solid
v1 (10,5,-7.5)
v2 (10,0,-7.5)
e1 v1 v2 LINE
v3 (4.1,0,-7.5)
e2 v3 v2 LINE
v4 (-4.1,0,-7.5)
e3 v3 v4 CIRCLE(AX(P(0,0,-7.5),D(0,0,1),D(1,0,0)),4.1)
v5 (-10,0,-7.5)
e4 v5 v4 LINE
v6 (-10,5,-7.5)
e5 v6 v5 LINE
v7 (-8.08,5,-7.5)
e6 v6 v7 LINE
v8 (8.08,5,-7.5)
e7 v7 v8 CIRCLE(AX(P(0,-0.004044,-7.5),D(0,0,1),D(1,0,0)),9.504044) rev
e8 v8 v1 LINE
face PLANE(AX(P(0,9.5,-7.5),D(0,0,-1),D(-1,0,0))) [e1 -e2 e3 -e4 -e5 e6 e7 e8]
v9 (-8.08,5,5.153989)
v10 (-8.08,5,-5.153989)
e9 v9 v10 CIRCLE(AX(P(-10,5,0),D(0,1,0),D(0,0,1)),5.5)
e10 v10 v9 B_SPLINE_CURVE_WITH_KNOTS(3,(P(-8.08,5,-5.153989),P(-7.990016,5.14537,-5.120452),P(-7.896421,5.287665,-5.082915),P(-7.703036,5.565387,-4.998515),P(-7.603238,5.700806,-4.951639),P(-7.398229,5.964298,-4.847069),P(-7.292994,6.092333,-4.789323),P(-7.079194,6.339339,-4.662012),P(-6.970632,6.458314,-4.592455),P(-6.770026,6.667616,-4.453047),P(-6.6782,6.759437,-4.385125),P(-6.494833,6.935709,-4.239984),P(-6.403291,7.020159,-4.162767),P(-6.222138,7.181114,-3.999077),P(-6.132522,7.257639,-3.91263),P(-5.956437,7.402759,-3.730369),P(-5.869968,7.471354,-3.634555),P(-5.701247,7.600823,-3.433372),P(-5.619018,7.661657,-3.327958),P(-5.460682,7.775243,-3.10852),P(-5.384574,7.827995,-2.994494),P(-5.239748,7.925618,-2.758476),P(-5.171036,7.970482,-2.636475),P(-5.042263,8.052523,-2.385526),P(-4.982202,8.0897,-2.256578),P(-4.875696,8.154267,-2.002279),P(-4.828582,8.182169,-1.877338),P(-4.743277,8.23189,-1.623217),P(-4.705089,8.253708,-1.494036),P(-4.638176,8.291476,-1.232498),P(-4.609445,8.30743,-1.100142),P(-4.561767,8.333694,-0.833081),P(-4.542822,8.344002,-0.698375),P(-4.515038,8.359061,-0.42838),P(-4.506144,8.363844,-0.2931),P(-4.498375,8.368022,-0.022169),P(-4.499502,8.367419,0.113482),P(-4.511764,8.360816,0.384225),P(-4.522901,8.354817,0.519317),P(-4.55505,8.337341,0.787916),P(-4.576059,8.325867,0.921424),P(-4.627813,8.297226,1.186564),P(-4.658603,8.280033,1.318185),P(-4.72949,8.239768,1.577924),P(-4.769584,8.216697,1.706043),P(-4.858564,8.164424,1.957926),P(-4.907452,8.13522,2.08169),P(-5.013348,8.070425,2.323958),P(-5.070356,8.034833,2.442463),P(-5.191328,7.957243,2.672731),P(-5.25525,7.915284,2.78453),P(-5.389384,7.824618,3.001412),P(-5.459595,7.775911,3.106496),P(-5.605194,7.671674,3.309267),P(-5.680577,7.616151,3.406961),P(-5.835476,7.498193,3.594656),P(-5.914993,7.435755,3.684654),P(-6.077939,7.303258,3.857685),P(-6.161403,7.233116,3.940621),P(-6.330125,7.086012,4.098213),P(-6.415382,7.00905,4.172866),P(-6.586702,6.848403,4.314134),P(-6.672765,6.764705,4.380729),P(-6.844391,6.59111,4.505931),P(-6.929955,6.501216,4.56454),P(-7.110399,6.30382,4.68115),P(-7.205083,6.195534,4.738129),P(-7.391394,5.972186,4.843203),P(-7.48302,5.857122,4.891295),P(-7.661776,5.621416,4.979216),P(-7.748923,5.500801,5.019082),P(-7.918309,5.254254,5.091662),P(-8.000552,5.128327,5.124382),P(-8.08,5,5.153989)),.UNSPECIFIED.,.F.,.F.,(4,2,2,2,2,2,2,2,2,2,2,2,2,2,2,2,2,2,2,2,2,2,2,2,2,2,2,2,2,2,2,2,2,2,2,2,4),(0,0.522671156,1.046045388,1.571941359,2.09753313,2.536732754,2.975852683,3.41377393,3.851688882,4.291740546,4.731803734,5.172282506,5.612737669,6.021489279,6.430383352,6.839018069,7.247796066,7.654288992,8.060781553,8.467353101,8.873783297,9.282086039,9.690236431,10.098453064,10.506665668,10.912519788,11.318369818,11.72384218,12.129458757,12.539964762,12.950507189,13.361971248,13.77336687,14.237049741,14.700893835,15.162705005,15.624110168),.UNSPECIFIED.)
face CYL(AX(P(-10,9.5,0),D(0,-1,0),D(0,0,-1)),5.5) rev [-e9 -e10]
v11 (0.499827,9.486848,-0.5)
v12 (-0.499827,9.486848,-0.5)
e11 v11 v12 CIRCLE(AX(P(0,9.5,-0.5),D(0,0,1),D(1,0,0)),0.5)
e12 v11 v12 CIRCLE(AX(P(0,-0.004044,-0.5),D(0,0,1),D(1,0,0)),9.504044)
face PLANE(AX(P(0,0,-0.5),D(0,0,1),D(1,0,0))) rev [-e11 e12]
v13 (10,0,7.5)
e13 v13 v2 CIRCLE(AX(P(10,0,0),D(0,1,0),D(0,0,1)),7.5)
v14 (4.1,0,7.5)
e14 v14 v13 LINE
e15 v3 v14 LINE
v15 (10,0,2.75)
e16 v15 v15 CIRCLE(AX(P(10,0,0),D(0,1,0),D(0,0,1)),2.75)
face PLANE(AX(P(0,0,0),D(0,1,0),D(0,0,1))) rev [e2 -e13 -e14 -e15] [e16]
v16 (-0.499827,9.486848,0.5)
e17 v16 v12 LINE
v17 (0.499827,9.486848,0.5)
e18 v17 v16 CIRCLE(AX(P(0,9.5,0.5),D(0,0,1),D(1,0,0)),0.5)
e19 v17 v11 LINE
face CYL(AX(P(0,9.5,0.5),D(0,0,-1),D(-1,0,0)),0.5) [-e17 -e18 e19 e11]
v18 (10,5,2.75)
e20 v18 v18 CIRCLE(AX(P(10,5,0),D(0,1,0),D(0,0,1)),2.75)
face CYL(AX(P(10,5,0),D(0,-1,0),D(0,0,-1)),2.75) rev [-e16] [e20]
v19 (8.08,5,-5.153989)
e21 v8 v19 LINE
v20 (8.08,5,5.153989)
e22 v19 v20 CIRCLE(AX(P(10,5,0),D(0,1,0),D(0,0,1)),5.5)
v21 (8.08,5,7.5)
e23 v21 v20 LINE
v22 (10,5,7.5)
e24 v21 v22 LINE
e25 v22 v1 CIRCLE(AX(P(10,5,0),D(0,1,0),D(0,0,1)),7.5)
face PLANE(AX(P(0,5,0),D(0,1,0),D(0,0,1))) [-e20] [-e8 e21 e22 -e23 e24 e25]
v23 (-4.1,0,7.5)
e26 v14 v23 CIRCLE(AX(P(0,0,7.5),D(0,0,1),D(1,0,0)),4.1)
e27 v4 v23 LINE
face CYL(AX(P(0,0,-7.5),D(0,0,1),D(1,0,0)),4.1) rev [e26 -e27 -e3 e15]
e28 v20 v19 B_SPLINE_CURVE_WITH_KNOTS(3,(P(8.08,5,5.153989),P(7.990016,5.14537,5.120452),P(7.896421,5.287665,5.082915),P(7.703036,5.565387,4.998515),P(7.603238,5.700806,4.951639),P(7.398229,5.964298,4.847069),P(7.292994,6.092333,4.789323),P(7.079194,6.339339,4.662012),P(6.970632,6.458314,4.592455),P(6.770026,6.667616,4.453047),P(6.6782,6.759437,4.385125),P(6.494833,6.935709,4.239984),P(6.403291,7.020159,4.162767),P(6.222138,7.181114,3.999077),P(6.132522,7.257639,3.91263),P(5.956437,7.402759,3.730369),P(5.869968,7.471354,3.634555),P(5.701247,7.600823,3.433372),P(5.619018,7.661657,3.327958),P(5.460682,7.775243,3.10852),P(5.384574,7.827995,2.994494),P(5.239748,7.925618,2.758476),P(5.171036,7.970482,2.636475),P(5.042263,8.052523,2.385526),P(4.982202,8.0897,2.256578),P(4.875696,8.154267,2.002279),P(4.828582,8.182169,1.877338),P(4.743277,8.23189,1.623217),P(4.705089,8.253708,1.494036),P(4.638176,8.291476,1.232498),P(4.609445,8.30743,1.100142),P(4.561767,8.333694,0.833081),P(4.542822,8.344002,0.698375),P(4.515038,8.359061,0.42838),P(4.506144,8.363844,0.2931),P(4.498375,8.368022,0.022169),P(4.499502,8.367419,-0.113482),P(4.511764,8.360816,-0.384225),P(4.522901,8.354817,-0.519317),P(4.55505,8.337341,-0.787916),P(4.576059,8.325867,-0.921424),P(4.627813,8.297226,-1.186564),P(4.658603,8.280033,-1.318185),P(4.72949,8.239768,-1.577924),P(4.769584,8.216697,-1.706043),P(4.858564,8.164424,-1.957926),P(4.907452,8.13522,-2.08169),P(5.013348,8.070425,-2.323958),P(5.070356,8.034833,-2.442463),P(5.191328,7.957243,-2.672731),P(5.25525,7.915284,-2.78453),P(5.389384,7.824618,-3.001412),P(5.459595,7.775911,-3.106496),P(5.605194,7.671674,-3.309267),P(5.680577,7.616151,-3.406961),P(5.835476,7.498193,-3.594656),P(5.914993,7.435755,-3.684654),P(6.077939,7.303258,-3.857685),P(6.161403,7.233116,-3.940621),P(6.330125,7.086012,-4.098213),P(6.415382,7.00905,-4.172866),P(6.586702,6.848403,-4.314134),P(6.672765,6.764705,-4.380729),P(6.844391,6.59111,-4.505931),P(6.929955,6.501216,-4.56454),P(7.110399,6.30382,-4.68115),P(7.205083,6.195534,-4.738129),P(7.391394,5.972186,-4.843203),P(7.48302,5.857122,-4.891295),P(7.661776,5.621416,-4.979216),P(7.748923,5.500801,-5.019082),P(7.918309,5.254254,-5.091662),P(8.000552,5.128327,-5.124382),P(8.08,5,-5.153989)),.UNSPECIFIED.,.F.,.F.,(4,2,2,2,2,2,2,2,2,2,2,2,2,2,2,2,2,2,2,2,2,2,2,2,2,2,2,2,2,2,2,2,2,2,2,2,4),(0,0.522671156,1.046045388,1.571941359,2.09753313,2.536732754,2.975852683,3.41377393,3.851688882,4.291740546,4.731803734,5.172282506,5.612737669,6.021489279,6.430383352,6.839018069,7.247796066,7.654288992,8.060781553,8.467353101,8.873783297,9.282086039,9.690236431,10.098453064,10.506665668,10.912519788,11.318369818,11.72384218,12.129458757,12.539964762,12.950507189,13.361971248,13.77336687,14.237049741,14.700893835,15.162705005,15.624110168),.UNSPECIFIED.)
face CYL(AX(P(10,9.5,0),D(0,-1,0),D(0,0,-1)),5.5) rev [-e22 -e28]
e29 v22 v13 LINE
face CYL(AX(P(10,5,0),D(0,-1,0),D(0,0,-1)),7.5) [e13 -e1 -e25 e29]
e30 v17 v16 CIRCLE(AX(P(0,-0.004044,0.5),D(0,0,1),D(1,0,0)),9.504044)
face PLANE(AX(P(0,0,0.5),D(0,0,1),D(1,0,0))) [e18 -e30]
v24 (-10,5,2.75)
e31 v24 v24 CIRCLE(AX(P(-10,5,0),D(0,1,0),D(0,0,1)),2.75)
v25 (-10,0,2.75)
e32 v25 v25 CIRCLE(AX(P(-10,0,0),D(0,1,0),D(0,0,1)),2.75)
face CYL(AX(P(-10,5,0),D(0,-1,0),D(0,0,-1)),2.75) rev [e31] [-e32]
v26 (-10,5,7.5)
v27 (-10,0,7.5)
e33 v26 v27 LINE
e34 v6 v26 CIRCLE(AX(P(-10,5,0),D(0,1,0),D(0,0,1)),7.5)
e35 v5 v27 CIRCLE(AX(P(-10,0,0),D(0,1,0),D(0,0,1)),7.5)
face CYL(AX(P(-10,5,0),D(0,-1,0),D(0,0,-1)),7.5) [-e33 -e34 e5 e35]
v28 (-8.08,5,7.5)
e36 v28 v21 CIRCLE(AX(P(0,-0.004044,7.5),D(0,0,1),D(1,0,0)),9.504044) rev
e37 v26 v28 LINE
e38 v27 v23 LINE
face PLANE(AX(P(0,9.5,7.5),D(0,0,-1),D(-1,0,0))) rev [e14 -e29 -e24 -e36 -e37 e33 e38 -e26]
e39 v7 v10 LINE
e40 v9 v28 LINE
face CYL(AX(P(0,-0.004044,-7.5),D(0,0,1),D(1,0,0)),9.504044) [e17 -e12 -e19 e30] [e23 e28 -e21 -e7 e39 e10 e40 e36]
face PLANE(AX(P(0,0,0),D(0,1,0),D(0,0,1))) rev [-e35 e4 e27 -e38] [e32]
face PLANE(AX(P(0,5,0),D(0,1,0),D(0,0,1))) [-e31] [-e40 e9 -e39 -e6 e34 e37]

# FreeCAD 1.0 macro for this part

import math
import FreeCAD as App
import Part
import Sketcher

V = App.Vector

doc = App.newDocument("Part")
body = doc.addObject("PartDesign::Body", "Body")

sketch1 = body.newObject("Sketcher::SketchObject", "Sketch")
sketch1.AttachmentSupport = (doc.getObject("XZ_Plane"), [""])
sketch1.MapMode = "FlatFace"
sketch1.addGeometry(Part.LineSegment(V(8.1, -7.5, 0), V(-8.1, -7.5, 0)), False)
sketch1.addGeometry(Part.LineSegment(V(-8.1, -7.5, 0), V(-8.1, -5.2, 0)), False)
sketch1.addGeometry(Part.ArcOfCircle(Part.Circle(V(-10, 0, 0), V(0, 0, 1), 5.5), math.radians(-70), math.radians(70)), False)
sketch1.addGeometry(Part.LineSegment(V(-8.1, 5.2, 0), V(-8.1, 7.5, 0)), False)
sketch1.addGeometry(Part.LineSegment(V(-8.1, 7.5, 0), V(8.1, 7.5, 0)), False)
sketch1.addGeometry(Part.LineSegment(V(8.1, 7.5, 0), V(8.1, 5.2, 0)), False)
sketch1.addGeometry(Part.ArcOfCircle(Part.Circle(V(10, 0, 0), V(0, 0, 1), 5.5), math.radians(110), math.radians(250)), False)
sketch1.addGeometry(Part.LineSegment(V(8.1, -5.2, 0), V(8.1, -7.5, 0)), False)
sketch1.addConstraint(Sketcher.Constraint("Coincident", 0, 2, 1, 1))
sketch1.addConstraint(Sketcher.Constraint("Coincident", 1, 2, 2, 1))
sketch1.addConstraint(Sketcher.Constraint("Coincident", 2, 2, 3, 1))
sketch1.addConstraint(Sketcher.Constraint("Coincident", 3, 2, 4, 1))
sketch1.addConstraint(Sketcher.Constraint("Coincident", 4, 2, 5, 1))
sketch1.addConstraint(Sketcher.Constraint("Coincident", 5, 2, 6, 1))
sketch1.addConstraint(Sketcher.Constraint("Coincident", 6, 2, 7, 1))
sketch1.addConstraint(Sketcher.Constraint("Coincident", 7, 2, 0, 1))
sketch1.addConstraint(Sketcher.Constraint("Horizontal", 0))
sketch1.addConstraint(Sketcher.Constraint("Vertical", 1))
sketch1.addConstraint(Sketcher.Constraint("Vertical", 3))
sketch1.addConstraint(Sketcher.Constraint("Horizontal", 4))
sketch1.addConstraint(Sketcher.Constraint("Vertical", 5))
sketch1.addConstraint(Sketcher.Constraint("Vertical", 7))
sketch1.addConstraint(Sketcher.Constraint("Equal", 2, 6))
sketch1.addConstraint(Sketcher.Constraint("Symmetric", 2, 3, 6, 3, -1, 1))
sketch1.addConstraint(Sketcher.Constraint("Symmetric", 0, 2, 4, 2, -1, 1))
sketch1.addConstraint(Sketcher.Constraint("Symmetric", 2, 2, 5, 2, -2))
sketch1.addConstraint(Sketcher.Constraint("Horizontal", 1, 2, 6, 2))
sketch1.addConstraint(Sketcher.Constraint("Radius", 2, 5.5))
sketch1.addConstraint(Sketcher.Constraint("DistanceX", 2, 3, -1, 1, 10.0))
sketch1.addConstraint(Sketcher.Constraint("DistanceY", 0, 2, 3, 2, 15.0))
sketch1.addConstraint(Sketcher.Constraint("DistanceX", 0, 2, 0, 1, 16.16))
pad1 = body.newObject("PartDesign::Pad", "Pad")
pad1.Profile = sketch1
pad1.Length = 9.5
pad1.Reversed = True

sketch2 = body.newObject("Sketcher::SketchObject", "Sketch001")
sketch2.AttachmentSupport = (doc.getObject("XZ_Plane"), [""])
sketch2.MapMode = "FlatFace"
sketch2.addGeometry(Part.LineSegment(V(-8.1, -5.2, 0), V(-8.1, -7.5, 0)), False)
sketch2.addGeometry(Part.LineSegment(V(-8.1, -7.5, 0), V(-10, -7.5, 0)), False)
sketch2.addGeometry(Part.ArcOfCircle(Part.Circle(V(-10, 0, 0), V(0, 0, 1), 7.5), math.radians(90), math.radians(270)), False)
sketch2.addGeometry(Part.LineSegment(V(-10, 7.5, 0), V(-8.1, 7.5, 0)), False)
sketch2.addGeometry(Part.LineSegment(V(-8.1, 7.5, 0), V(-8.1, 5.2, 0)), False)
sketch2.addGeometry(Part.ArcOfCircle(Part.Circle(V(-10, 0, 0), V(0, 0, 1), 5.5), math.radians(-70), math.radians(70)), False)
sketch2.addGeometry(Part.Circle(V(-10, 0, 0), V(0, 0, 1), 2.8), False)
sketch2.addGeometry(Part.LineSegment(V(10, -7.5, 0), V(8.1, -7.5, 0)), False)
sketch2.addGeometry(Part.LineSegment(V(8.1, -7.5, 0), V(8.1, -5.2, 0)), False)
sketch2.addGeometry(Part.ArcOfCircle(Part.Circle(V(10, 0, 0), V(0, 0, 1), 5.5), math.radians(110), math.radians(250)), False)
sketch2.addGeometry(Part.LineSegment(V(8.1, 5.2, 0), V(8.1, 7.5, 0)), False)
sketch2.addGeometry(Part.LineSegment(V(8.1, 7.5, 0), V(10, 7.5, 0)), False)
sketch2.addGeometry(Part.ArcOfCircle(Part.Circle(V(10, 0, 0), V(0, 0, 1), 7.5), math.radians(-90), math.radians(90)), False)
sketch2.addGeometry(Part.Circle(V(10, 0, 0), V(0, 0, 1), 2.8), False)
sketch2.addConstraint(Sketcher.Constraint("Coincident", 0, 2, 1, 1))
sketch2.addConstraint(Sketcher.Constraint("Tangent", 1, 2, 2, 2))
sketch2.addConstraint(Sketcher.Constraint("Tangent", 2, 1, 3, 1))
sketch2.addConstraint(Sketcher.Constraint("Coincident", 3, 2, 4, 1))
sketch2.addConstraint(Sketcher.Constraint("Coincident", 4, 2, 5, 2))
sketch2.addConstraint(Sketcher.Constraint("Coincident", 5, 1, 0, 1))
sketch2.addConstraint(Sketcher.Constraint("Coincident", 7, 2, 8, 1))
sketch2.addConstraint(Sketcher.Constraint("Coincident", 8, 2, 9, 2))
sketch2.addConstraint(Sketcher.Constraint("Coincident", 9, 1, 10, 1))
sketch2.addConstraint(Sketcher.Constraint("Coincident", 10, 2, 11, 1))
sketch2.addConstraint(Sketcher.Constraint("Tangent", 11, 2, 12, 2))
sketch2.addConstraint(Sketcher.Constraint("Tangent", 12, 1, 7, 1))
sketch2.addConstraint(Sketcher.Constraint("Vertical", 0))
sketch2.addConstraint(Sketcher.Constraint("Horizontal", 1))
sketch2.addConstraint(Sketcher.Constraint("Horizontal", 3))
sketch2.addConstraint(Sketcher.Constraint("Vertical", 4))
sketch2.addConstraint(Sketcher.Constraint("Horizontal", 7))
sketch2.addConstraint(Sketcher.Constraint("Vertical", 8))
sketch2.addConstraint(Sketcher.Constraint("Vertical", 10))
sketch2.addConstraint(Sketcher.Constraint("Horizontal", 11))
sketch2.addConstraint(Sketcher.Constraint("Coincident", 5, 3, 2, 3))
sketch2.addConstraint(Sketcher.Constraint("Coincident", 6, 3, 2, 3))
sketch2.addConstraint(Sketcher.Constraint("Coincident", 12, 3, 9, 3))
sketch2.addConstraint(Sketcher.Constraint("Coincident", 13, 3, 9, 3))
sketch2.addConstraint(Sketcher.Constraint("Equal", 5, 9))
sketch2.addConstraint(Sketcher.Constraint("Equal", 2, 12))
sketch2.addConstraint(Sketcher.Constraint("Equal", 6, 13))
sketch2.addConstraint(Sketcher.Constraint("Symmetric", 2, 3, 9, 3, -1, 1))
sketch2.addConstraint(Sketcher.Constraint("Symmetric", 0, 2, 7, 2, -2))
sketch2.addConstraint(Sketcher.Constraint("Horizontal", 4, 2, 9, 1))
sketch2.addConstraint(Sketcher.Constraint("Vertical", 0, 2, 3, 2))
sketch2.addConstraint(Sketcher.Constraint("Diameter", 6, 5.5))
sketch2.addConstraint(Sketcher.Constraint("Radius", 2, 7.5))
sketch2.addConstraint(Sketcher.Constraint("Radius", 5, 5.5))
sketch2.addConstraint(Sketcher.Constraint("DistanceX", 2, 3, -1, 1, 10.0))
sketch2.addConstraint(Sketcher.Constraint("DistanceX", 1, 2, 1, 1, 1.92))
pad2 = body.newObject("PartDesign::Pad", "Pad001")
pad2.Profile = sketch2
pad2.Length = 5
pad2.Reversed = True

sketch3 = body.newObject("Sketcher::SketchObject", "Sketch002")
sketch3.AttachmentSupport = (doc.getObject("XY_Plane"), [""])
sketch3.MapMode = "FlatFace"
sketch3.AttachmentOffset = App.Placement(V(0, 0, 7.5), App.Rotation())
sketch3.addGeometry(Part.LineSegment(V(0, 9.5, 0), V(-8.1, 9.5, 0)), False)
sketch3.addGeometry(Part.LineSegment(V(-8.1, 9.5, 0), V(-8.1, 5, 0)), False)
sketch3.addGeometry(Part.ArcOfCircle(Part.Circle(V(0, 0, 0), V(0, 0, 1), 9.5), math.radians(90), math.radians(148)), False)
sketch3.addGeometry(Part.LineSegment(V(8.1, 9.5, 0), V(0, 9.5, 0)), False)
sketch3.addGeometry(Part.ArcOfCircle(Part.Circle(V(0, 0, 0), V(0, 0, 1), 9.5), math.radians(32), math.radians(90)), False)
sketch3.addGeometry(Part.LineSegment(V(8.1, 5, 0), V(8.1, 9.5, 0)), False)
sketch3.addGeometry(Part.Circle(V(0, 0, 0), V(0, 0, 1), 4.1), False)
sketch3.addConstraint(Sketcher.Constraint("Coincident", 0, 2, 1, 1))
sketch3.addConstraint(Sketcher.Constraint("Coincident", 1, 2, 2, 2))
sketch3.addConstraint(Sketcher.Constraint("Tangent", 2, 1, 0, 1))
sketch3.addConstraint(Sketcher.Constraint("Tangent", 3, 2, 4, 2))
sketch3.addConstraint(Sketcher.Constraint("Coincident", 4, 1, 5, 1))
sketch3.addConstraint(Sketcher.Constraint("Coincident", 5, 2, 3, 1))
sketch3.addConstraint(Sketcher.Constraint("Horizontal", 0))
sketch3.addConstraint(Sketcher.Constraint("Vertical", 1))
sketch3.addConstraint(Sketcher.Constraint("Horizontal", 3))
sketch3.addConstraint(Sketcher.Constraint("Vertical", 5))
sketch3.addConstraint(Sketcher.Constraint("Coincident", 6, 3, -1, 1))
sketch3.addConstraint(Sketcher.Constraint("Coincident", 4, 3, 2, 3))
sketch3.addConstraint(Sketcher.Constraint("Equal", 2, 4))
sketch3.addConstraint(Sketcher.Constraint("Symmetric", 1, 2, 4, 1, -2))
sketch3.addConstraint(Sketcher.Constraint("Diameter", 6, 8.2))
sketch3.addConstraint(Sketcher.Constraint("DistanceY", 1, 2, 1, 1, 4.5))
sketch3.addConstraint(Sketcher.Constraint("DistanceY", -1, 1, 1, 2, 5.0))
sketch3.addConstraint(Sketcher.Constraint("DistanceX", 0, 2, 0, 1, 8.08))
pocket1 = body.newObject("PartDesign::Pocket", "Pocket")
pocket1.Profile = sketch3
pocket1.Type = "ThroughAll"

sketch4 = body.newObject("Sketcher::SketchObject", "Sketch003")
sketch4.AttachmentSupport = (doc.getObject("XY_Plane"), [""])
sketch4.MapMode = "FlatFace"
sketch4.addGeometry(Part.Circle(V(0, 9.5, 0), V(0, 0, 1), 0.5), False)
sketch4.addConstraint(Sketcher.Constraint("PointOnObject", 0, 3, -2))
sketch4.addConstraint(Sketcher.Constraint("Diameter", 0, 1.0))
sketch4.addConstraint(Sketcher.Constraint("DistanceY", -1, 1, 0, 3, 9.5))
pad3 = body.newObject("PartDesign::Pad", "Pad002")
pad3.Profile = sketch4
pad3.Length = 1
pad3.Midplane = True

doc.recompute()
